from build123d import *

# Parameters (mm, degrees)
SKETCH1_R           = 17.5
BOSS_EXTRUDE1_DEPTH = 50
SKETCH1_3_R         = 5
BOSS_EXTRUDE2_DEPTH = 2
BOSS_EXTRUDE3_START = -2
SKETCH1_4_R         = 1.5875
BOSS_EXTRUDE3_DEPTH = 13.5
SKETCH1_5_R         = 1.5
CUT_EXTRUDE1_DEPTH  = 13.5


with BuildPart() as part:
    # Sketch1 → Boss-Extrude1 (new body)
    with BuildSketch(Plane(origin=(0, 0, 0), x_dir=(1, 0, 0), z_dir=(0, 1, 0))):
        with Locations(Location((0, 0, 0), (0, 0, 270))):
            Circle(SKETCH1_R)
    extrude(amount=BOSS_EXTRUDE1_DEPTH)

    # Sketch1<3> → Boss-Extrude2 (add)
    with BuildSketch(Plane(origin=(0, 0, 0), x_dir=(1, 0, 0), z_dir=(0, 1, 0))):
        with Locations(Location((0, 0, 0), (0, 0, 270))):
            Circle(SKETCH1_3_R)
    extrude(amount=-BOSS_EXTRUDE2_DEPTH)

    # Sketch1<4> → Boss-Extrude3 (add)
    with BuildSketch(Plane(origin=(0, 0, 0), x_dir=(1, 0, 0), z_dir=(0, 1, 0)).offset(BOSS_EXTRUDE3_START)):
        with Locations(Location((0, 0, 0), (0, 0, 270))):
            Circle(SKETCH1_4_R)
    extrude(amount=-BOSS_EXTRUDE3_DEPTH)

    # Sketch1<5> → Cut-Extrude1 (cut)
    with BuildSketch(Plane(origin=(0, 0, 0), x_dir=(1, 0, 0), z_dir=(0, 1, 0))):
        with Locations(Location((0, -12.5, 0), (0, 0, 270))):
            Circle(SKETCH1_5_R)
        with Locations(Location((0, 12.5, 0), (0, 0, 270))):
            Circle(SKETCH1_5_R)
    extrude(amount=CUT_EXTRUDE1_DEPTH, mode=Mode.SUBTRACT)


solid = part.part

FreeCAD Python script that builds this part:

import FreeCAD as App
import Part
import Sketcher

V = App.Vector
Q = App.Units.Quantity

doc = App.newDocument("Part")
params = doc.addObject("Spreadsheet::Sheet", "Params")
for row, (alias, value) in enumerate([
    ("sketch1_diameter", "35 mm"),
    ("pad1_length", "50 mm"),
    ("sketch2_diameter", "10 mm"),
    ("pad2_length", "2 mm"),
    ("pad3_length", "13.5 mm"),
    ("sketch4_diameter", "3 mm"),
    ("pocket1_length", "13.5 mm"),
], start=1):
    params.set(f"A{row}", alias)
    params.set(f"B{row}", "=" + value)
    params.setAlias(f"B{row}", alias)

body = doc.addObject("PartDesign::Body", "Body")

sketch1 = body.newObject("Sketcher::SketchObject", "Sketch")
sketch1.AttachmentSupport = (doc.getObject("XZ_Plane"), [""])
sketch1.MapMode = "FlatFace"
sketch1.addGeometry(Part.Circle(V(0, 0, 0), V(0, 0, 1), 18), False)
sketch1.addConstraint([
    Sketcher.Constraint("Coincident", 0, 3, -1, 1),
    Sketcher.Constraint("Diameter", 0, Q("35 mm")),
])
sketch1.setExpression("Constraints[1]", "Params.sketch1_diameter")
pad1 = body.newObject("PartDesign::Pad", "Pad")
pad1.Profile = sketch1
pad1.setExpression("Length", "Params.pad1_length")
pad1.Reversed = True

sketch2 = body.newObject("Sketcher::SketchObject", "Sketch001")
sketch2.AttachmentSupport = (doc.getObject("XZ_Plane"), [""])
sketch2.MapMode = "FlatFace"
sketch2.addGeometry(Part.Circle(V(0, 0, 0), V(0, 0, 1), 5), False)
sketch2.addConstraint([
    Sketcher.Constraint("Coincident", 0, 3, -1, 1),
    Sketcher.Constraint("Diameter", 0, Q("10 mm")),
])
sketch2.setExpression("Constraints[1]", "Params.sketch2_diameter")
pad2 = body.newObject("PartDesign::Pad", "Pad001")
pad2.Profile = sketch2
pad2.setExpression("Length", "Params.pad2_length")

sketch3 = body.newObject("Sketcher::SketchObject", "Sketch002")
sketch3.AttachmentSupport = (doc.getObject("XZ_Plane"), [""])
sketch3.MapMode = "FlatFace"
sketch3.AttachmentOffset = App.Placement(V(0, 0, 2), App.Rotation())
sketch3.addGeometry(Part.Circle(V(0, 0, 0), V(0, 0, 1), 1.6), False)
sketch3.addConstraint([
    Sketcher.Constraint("Coincident", 0, 3, -1, 1),
    Sketcher.Constraint("Diameter", 0, Q("3.175 mm")),
])
pad3 = body.newObject("PartDesign::Pad", "Pad002")
pad3.Profile = sketch3
pad3.setExpression("Length", "Params.pad3_length")

sketch4 = body.newObject("Sketcher::SketchObject", "Sketch003")
sketch4.AttachmentSupport = (doc.getObject("XZ_Plane"), [""])
sketch4.MapMode = "FlatFace"
sketch4.addGeometry([
    Part.Circle(V(0, 12.5, 0), V(0, 0, 1), 1.5),
    Part.Circle(V(0, -12.5, 0), V(0, 0, 1), 1.5),
], False)
sketch4.addConstraint([
    Sketcher.Constraint("Equal", 0, 1),
    Sketcher.Constraint("Symmetric", 0, 3, 1, 3, -1, 1),
    Sketcher.Constraint("PointOnObject", 0, 3, -2),
    Sketcher.Constraint("Diameter", 0, Q("3 mm")),
    Sketcher.Constraint("DistanceY", 1, 3, 0, 3, Q("25 mm")),
])
sketch4.setExpression("Constraints[3]", "Params.sketch4_diameter")
pocket1 = body.newObject("PartDesign::Pocket", "Pocket")
pocket1.Profile = sketch4
pocket1.setExpression("Length", "Params.pocket1_length")

doc.recompute()
